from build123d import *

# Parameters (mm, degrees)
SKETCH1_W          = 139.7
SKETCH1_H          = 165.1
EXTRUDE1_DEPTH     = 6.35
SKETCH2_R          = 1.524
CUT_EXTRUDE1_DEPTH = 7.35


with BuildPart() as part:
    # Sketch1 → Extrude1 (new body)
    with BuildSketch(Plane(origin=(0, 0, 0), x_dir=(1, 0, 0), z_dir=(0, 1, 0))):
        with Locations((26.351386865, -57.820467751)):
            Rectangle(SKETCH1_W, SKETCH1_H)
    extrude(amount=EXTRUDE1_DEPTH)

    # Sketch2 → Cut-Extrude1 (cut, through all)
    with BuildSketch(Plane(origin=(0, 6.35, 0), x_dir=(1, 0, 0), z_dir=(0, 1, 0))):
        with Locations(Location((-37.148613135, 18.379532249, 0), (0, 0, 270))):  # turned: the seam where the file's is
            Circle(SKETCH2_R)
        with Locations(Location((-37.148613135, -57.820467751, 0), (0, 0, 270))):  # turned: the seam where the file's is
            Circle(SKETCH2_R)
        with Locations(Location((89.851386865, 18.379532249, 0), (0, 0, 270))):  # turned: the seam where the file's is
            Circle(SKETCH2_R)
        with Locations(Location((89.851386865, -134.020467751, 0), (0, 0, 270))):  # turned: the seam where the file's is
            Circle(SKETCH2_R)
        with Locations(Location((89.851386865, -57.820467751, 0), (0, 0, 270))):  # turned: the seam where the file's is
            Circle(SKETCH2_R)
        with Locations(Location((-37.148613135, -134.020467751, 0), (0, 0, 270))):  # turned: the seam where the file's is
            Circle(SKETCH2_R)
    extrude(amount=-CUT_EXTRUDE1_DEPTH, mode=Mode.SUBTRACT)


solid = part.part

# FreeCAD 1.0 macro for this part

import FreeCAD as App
import Part
import Sketcher
from FreeCAD import Vector
Q = App.Units.Quantity


def add_polygon(sketch, points):
    """Adds a closed chain of lines whose ends are joined by coincident constraints."""
    first, n = sketch.GeometryCount, len(points)
    for a, b in zip(points, points[1:] + points[:1]):
        sketch.addGeometry(Part.LineSegment(App.Vector(*a, 0), App.Vector(*b, 0)), False)
    for i in range(n):
        sketch.addConstraint(Sketcher.Constraint("Coincident", first + i, 2, first + (i + 1) % n, 1))

doc = App.newDocument("Part")
body = doc.addObject("PartDesign::Body", "Body")

# Sketch on XZ plane
sketch1 = body.newObject("Sketcher::SketchObject", "Sketch")
sketch1.AttachmentSupport = (doc.getObject("XZ_Plane"), [""])
sketch1.MapMode = "FlatFace"
add_polygon(sketch1, [(-43, -25), (-43, 140), (96, 140), (96, -25)])  # lines 0-3
sketch1.addConstraint([
    Sketcher.Constraint("Vertical", 0),
    Sketcher.Constraint("Horizontal", 1),
    Sketcher.Constraint("Vertical", 2),
    Sketcher.Constraint("Horizontal", 3),
    Sketcher.Constraint("DistanceX", 1, 1, 1, 2, Q("5.5 in")),
    Sketcher.Constraint("DistanceY", 0, 1, 0, 2, Q("6.5 in")),
    Sketcher.Constraint("DistanceX", 0, 2, -1, 1, 43.498613),
    Sketcher.Constraint("DistanceY", -1, 1, 0, 2, 140.370468),
])
pad1 = body.newObject("PartDesign::Pad", "Pad")
pad1.Profile = sketch1
pad1.Length = Q("0.25 in")
pad1.Reversed = True

# Sketch on XZ plane
sketch2 = body.newObject("Sketcher::SketchObject", "Sketch001")
sketch2.AttachmentSupport = (doc.getObject("XZ_Plane"), [""])
sketch2.MapMode = "FlatFace"
sketch2.AttachmentOffset = App.Placement(Vector(0, 0, -0.25 * 25.4), App.Rotation())
sketch2.addGeometry([
    Part.Circle(Vector(-37.1, -18.4, 0), Vector(0, 0, 1), 1.5),  # 0
    Part.Circle(Vector(-37.1, 57.8, 0), Vector(0, 0, 1), 1.5),  # 1
    Part.Circle(Vector(89.9, -18.4, 0), Vector(0, 0, 1), 1.5),  # 2
    Part.Circle(Vector(89.9, 134, 0), Vector(0, 0, 1), 1.5),  # 3
    Part.Circle(Vector(89.9, 57.8, 0), Vector(0, 0, 1), 1.5),  # 4
    Part.Circle(Vector(-37.1, 134, 0), Vector(0, 0, 1), 1.5),  # 5
], False)
sketch2.addConstraint([
    Sketcher.Constraint("Equal", 0, 1),
    Sketcher.Constraint("Equal", 1, 2),
    Sketcher.Constraint("Equal", 2, 3),
    Sketcher.Constraint("Equal", 3, 4),
    Sketcher.Constraint("Equal", 4, 5),
    Sketcher.Constraint("Horizontal", 0, 3, 2, 3),
    Sketcher.Constraint("Horizontal", 1, 3, 4, 3),
    Sketcher.Constraint("Horizontal", 3, 3, 5, 3),
    Sketcher.Constraint("Vertical", 0, 3, 1, 3),
    Sketcher.Constraint("Vertical", 2, 3, 3, 3),
    Sketcher.Constraint("Vertical", 3, 3, 4, 3),
    Sketcher.Constraint("Vertical", 1, 3, 5, 3),
    Sketcher.Constraint("Diameter", 0, Q("0.12 in")),
    Sketcher.Constraint("DistanceY", 0, 3, 1, 3, Q("3 in")),
    Sketcher.Constraint("DistanceX", 0, 3, 2, 3, Q("5 in")),
    Sketcher.Constraint("DistanceY", 1, 3, 3, 3, Q("3 in")),
    Sketcher.Constraint("DistanceX", 0, 3, -1, 1, 37.148613),
    Sketcher.Constraint("DistanceY", 0, 3, -1, 1, 18.379532),
])
pocket1 = body.newObject("PartDesign::Pocket", "Pocket")
pocket1.Profile = sketch2
pocket1.Type = "ThroughAll"
pocket1.Reversed = True

doc.recompute()
